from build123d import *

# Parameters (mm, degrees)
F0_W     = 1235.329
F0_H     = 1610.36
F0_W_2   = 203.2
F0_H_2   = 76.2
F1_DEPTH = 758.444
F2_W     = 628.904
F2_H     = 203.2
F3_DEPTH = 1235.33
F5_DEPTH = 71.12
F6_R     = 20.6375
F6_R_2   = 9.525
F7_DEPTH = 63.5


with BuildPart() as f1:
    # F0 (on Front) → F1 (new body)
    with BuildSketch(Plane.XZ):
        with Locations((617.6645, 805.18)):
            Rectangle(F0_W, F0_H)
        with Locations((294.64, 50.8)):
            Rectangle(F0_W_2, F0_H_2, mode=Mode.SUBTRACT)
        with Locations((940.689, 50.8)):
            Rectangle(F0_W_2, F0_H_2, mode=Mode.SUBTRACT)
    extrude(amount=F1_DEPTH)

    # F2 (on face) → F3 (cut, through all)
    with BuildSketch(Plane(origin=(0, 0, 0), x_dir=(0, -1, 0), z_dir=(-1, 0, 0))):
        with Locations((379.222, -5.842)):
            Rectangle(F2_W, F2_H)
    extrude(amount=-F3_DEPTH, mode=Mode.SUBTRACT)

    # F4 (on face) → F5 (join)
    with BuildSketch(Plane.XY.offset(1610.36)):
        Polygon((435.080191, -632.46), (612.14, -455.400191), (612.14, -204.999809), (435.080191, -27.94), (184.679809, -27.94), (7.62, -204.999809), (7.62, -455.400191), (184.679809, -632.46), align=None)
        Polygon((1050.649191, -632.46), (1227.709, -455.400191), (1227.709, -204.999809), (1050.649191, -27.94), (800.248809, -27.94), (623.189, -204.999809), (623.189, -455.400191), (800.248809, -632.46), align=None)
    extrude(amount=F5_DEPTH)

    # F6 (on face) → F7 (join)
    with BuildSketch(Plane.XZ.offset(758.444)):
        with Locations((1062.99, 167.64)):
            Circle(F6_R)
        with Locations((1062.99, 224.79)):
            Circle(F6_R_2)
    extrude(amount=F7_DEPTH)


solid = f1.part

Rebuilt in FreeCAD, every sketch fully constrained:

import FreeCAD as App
import Part
import Sketcher
Q = App.Units.Quantity

doc = App.newDocument("Part")
params = doc.addObject("Spreadsheet::Sheet", "Params")
for row, (alias, value) in enumerate([
    ("sketch1_width", "8 in"),
    ("sketch1_height", "3 in"),
    ("sketch1_height2", "63.4 in"),
    ("sketch1_width2", "48.635 in"),
    ("pad1_length", "29.86 in"),
    ("sketch2_height", "8 in"),
    ("sketch2_width", "24.76 in"),
    ("pad2_length", "2.8 in"),
    ("sketch4_diameter", "0.75 in"),
    ("sketch4_diameter2", "1.625 in"),
    ("pad3_length", "2.5 in"),
], start=1):
    params.set(f"A{row}", alias)
    params.set(f"B{row}", "=" + value)
    params.setAlias(f"B{row}", alias)

body = doc.addObject("PartDesign::Body", "Body")

# Sketch on XZ plane
sketch1 = body.newObject("Sketcher::SketchObject", "Sketch")
sketch1.AttachmentSupport = (doc.getObject("XZ_Plane"), [""])
sketch1.MapMode = "FlatFace"
sketch1.addGeometry([
    Part.LineSegment(App.Vector(0, 1610, 0), App.Vector(0, 0, 0)),  # 0
    Part.LineSegment(App.Vector(0, 0, 0), App.Vector(1235, 0, 0)),  # 1
    Part.LineSegment(App.Vector(1235, 0, 0), App.Vector(1235, 1610, 0)),  # 2
    Part.LineSegment(App.Vector(1235, 1610, 0), App.Vector(0, 1610, 0)),  # 3
    Part.LineSegment(App.Vector(396, 13, 0), App.Vector(193, 13, 0)),  # 4
    Part.LineSegment(App.Vector(193, 13, 0), App.Vector(193, 89, 0)),  # 5
    Part.LineSegment(App.Vector(193, 89, 0), App.Vector(396, 89, 0)),  # 6
    Part.LineSegment(App.Vector(396, 89, 0), App.Vector(396, 13, 0)),  # 7
    Part.LineSegment(App.Vector(1042, 13, 0), App.Vector(839, 13, 0)),  # 8
    Part.LineSegment(App.Vector(839, 13, 0), App.Vector(839, 89, 0)),  # 9
    Part.LineSegment(App.Vector(839, 89, 0), App.Vector(1042, 89, 0)),  # 10
    Part.LineSegment(App.Vector(1042, 89, 0), App.Vector(1042, 13, 0)),  # 11
], False)
sketch1.addConstraint([
    Sketcher.Constraint("Coincident", 0, 2, 1, 1),
    Sketcher.Constraint("Coincident", 1, 2, 2, 1),
    Sketcher.Constraint("Coincident", 2, 2, 3, 1),
    Sketcher.Constraint("Coincident", 3, 2, 0, 1),
    Sketcher.Constraint("Coincident", 4, 2, 5, 1),
    Sketcher.Constraint("Coincident", 5, 2, 6, 1),
    Sketcher.Constraint("Coincident", 6, 2, 7, 1),
    Sketcher.Constraint("Coincident", 7, 2, 4, 1),
    Sketcher.Constraint("Coincident", 8, 2, 9, 1),
    Sketcher.Constraint("Coincident", 9, 2, 10, 1),
    Sketcher.Constraint("Coincident", 10, 2, 11, 1),
    Sketcher.Constraint("Coincident", 11, 2, 8, 1),
    Sketcher.Constraint("Vertical", 0),
    Sketcher.Constraint("Horizontal", 1),
    Sketcher.Constraint("Vertical", 2),
    Sketcher.Constraint("Horizontal", 3),
    Sketcher.Constraint("Horizontal", 4),
    Sketcher.Constraint("Vertical", 5),
    Sketcher.Constraint("Horizontal", 6),
    Sketcher.Constraint("Vertical", 7),
    Sketcher.Constraint("Horizontal", 8),
    Sketcher.Constraint("Vertical", 9),
    Sketcher.Constraint("Horizontal", 10),
    Sketcher.Constraint("Vertical", 11),
    Sketcher.Constraint("Coincident", 0, 2, -1, 1),
    Sketcher.Constraint("Horizontal", 7, 2, 8, 2),
    Sketcher.Constraint("Horizontal", 6, 2, 9, 2),
    Sketcher.Constraint("Equal", 6, 8),
    Sketcher.Constraint("DistanceX", 4, 2, 4, 1, Q("8 in")),
    Sketcher.Constraint("DistanceY", 5, 1, 5, 2, Q("3 in")),
    Sketcher.Constraint("DistanceY", 0, 2, 0, 1, Q("63.4 in")),
    Sketcher.Constraint("DistanceX", -1, 1, 4, 2, Q("7.6 in")),
    Sketcher.Constraint("DistanceY", -1, 1, 4, 2, Q("0.5 in")),
    Sketcher.Constraint("DistanceX", 8, 2, 1, 2, Q("15.6 in")),
    Sketcher.Constraint("DistanceX", 1, 1, 1, 2, Q("48.635 in")),
])
sketch1.setExpression("Constraints[28]", "Params.sketch1_width")
sketch1.setExpression("Constraints[29]", "Params.sketch1_height")
sketch1.setExpression("Constraints[30]", "Params.sketch1_height2")
sketch1.setExpression("Constraints[34]", "Params.sketch1_width2")
pad1 = body.newObject("PartDesign::Pad", "Pad")
pad1.Profile = sketch1
pad1.setExpression("Length", "Params.pad1_length")

# Sketch on YZ plane
sketch2 = body.newObject("Sketcher::SketchObject", "Sketch001")
sketch2.AttachmentSupport = (doc.getObject("YZ_Plane"), [""])
sketch2.MapMode = "FlatFace"
sketch2.addGeometry([
    Part.LineSegment(App.Vector(-65, 96, 0), App.Vector(-65, -107, 0)),
    Part.LineSegment(App.Vector(-65, -107, 0), App.Vector(-694, -107, 0)),
    Part.LineSegment(App.Vector(-694, -107, 0), App.Vector(-694, 96, 0)),
    Part.LineSegment(App.Vector(-694, 96, 0), App.Vector(-65, 96, 0)),
], False)
sketch2.addConstraint([
    Sketcher.Constraint("Coincident", 0, 2, 1, 1),
    Sketcher.Constraint("Coincident", 1, 2, 2, 1),
    Sketcher.Constraint("Coincident", 2, 2, 3, 1),
    Sketcher.Constraint("Coincident", 3, 2, 0, 1),
    Sketcher.Constraint("Vertical", 0),
    Sketcher.Constraint("Horizontal", 1),
    Sketcher.Constraint("Vertical", 2),
    Sketcher.Constraint("Horizontal", 3),
    Sketcher.Constraint("DistanceY", 0, 2, 0, 1, Q("8 in")),
    Sketcher.Constraint("DistanceX", 1, 2, 1, 1, Q("24.76 in")),
    Sketcher.Constraint("DistanceX", 0, 2, -1, 1, Q("2.55 in")),
    Sketcher.Constraint("DistanceY", 0, 2, -1, 1, Q("4.23 in")),
])
sketch2.setExpression("Constraints[8]", "Params.sketch2_height")
sketch2.setExpression("Constraints[9]", "Params.sketch2_width")
pocket1 = body.newObject("PartDesign::Pocket", "Pocket")
pocket1.Profile = sketch2
pocket1.Type = "ThroughAll"
pocket1.Reversed = True

# Sketch on XY plane
sketch3 = body.newObject("Sketcher::SketchObject", "Sketch002")
sketch3.AttachmentSupport = (doc.getObject("XY_Plane"), [""])
sketch3.MapMode = "FlatFace"
sketch3.AttachmentOffset = App.Placement(App.Vector(0, 0, 63.4 * 25.4), App.Rotation())
sketch3.addGeometry([
    Part.LineSegment(App.Vector(435, -632, 0), App.Vector(612, -455, 0)),  # 0
    Part.LineSegment(App.Vector(612, -455, 0), App.Vector(612, -205, 0)),  # 1
    Part.LineSegment(App.Vector(612, -205, 0), App.Vector(435, -28, 0)),  # 2
    Part.LineSegment(App.Vector(435, -28, 0), App.Vector(185, -28, 0)),  # 3
    Part.LineSegment(App.Vector(185, -28, 0), App.Vector(8, -205, 0)),  # 4
    Part.LineSegment(App.Vector(8, -205, 0), App.Vector(8, -455, 0)),  # 5
    Part.LineSegment(App.Vector(8, -455, 0), App.Vector(185, -632, 0)),  # 6
    Part.LineSegment(App.Vector(185, -632, 0), App.Vector(435, -632, 0)),  # 7
    Part.LineSegment(App.Vector(1051, -632, 0), App.Vector(1228, -455, 0)),  # 8
    Part.LineSegment(App.Vector(1228, -455, 0), App.Vector(1228, -205, 0)),  # 9
    Part.LineSegment(App.Vector(1228, -205, 0), App.Vector(1051, -28, 0)),  # 10
    Part.LineSegment(App.Vector(1051, -28, 0), App.Vector(800, -28, 0)),  # 11
    Part.LineSegment(App.Vector(800, -28, 0), App.Vector(623, -205, 0)),  # 12
    Part.LineSegment(App.Vector(623, -205, 0), App.Vector(623, -455, 0)),  # 13
    Part.LineSegment(App.Vector(623, -455, 0), App.Vector(800, -632, 0)),  # 14
    Part.LineSegment(App.Vector(800, -632, 0), App.Vector(1051, -632, 0)),  # 15
], False)
sketch3.addConstraint([
    Sketcher.Constraint("Coincident", 0, 2, 1, 1),
    Sketcher.Constraint("Coincident", 1, 2, 2, 1),
    Sketcher.Constraint("Coincident", 2, 2, 3, 1),
    Sketcher.Constraint("Coincident", 3, 2, 4, 1),
    Sketcher.Constraint("Coincident", 4, 2, 5, 1),
    Sketcher.Constraint("Coincident", 5, 2, 6, 1),
    Sketcher.Constraint("Coincident", 6, 2, 7, 1),
    Sketcher.Constraint("Coincident", 7, 2, 0, 1),
    Sketcher.Constraint("Coincident", 8, 2, 9, 1),
    Sketcher.Constraint("Coincident", 9, 2, 10, 1),
    Sketcher.Constraint("Coincident", 10, 2, 11, 1),
    Sketcher.Constraint("Coincident", 11, 2, 12, 1),
    Sketcher.Constraint("Coincident", 12, 2, 13, 1),
    Sketcher.Constraint("Coincident", 13, 2, 14, 1),
    Sketcher.Constraint("Coincident", 14, 2, 15, 1),
    Sketcher.Constraint("Coincident", 15, 2, 8, 1),
    Sketcher.Constraint("Vertical", 1),
    Sketcher.Constraint("Horizontal", 3),
    Sketcher.Constraint("Vertical", 5),
    Sketcher.Constraint("Horizontal", 7),
    Sketcher.Constraint("Vertical", 9),
    Sketcher.Constraint("Horizontal", 11),
    Sketcher.Constraint("Vertical", 13),
    Sketcher.Constraint("Horizontal", 15),
    Sketcher.Constraint("Perpendicular", 0, 2),
    Sketcher.Constraint("Perpendicular", 2, 4),
    Sketcher.Constraint("Perpendicular", 4, 6),
    Sketcher.Constraint("Perpendicular", 6, 8),
    Sketcher.Constraint("Perpendicular", 8, 10),
    Sketcher.Constraint("Perpendicular", 10, 12),
    Sketcher.Constraint("Perpendicular", 12, 14),
    Sketcher.Constraint("Horizontal", 1, 2, 4, 2),
    Sketcher.Constraint("Horizontal", 0, 2, 5, 2),
    Sketcher.Constraint("Horizontal", 5, 2, 8, 2),
    Sketcher.Constraint("Horizontal", 4, 2, 9, 2),
    Sketcher.Constraint("Horizontal", 3, 2, 10, 2),
    Sketcher.Constraint("Horizontal", 9, 2, 12, 2),
    Sketcher.Constraint("Horizontal", 8, 2, 13, 2),
    Sketcher.Constraint("Horizontal", 7, 2, 14, 2),
    Sketcher.Constraint("Vertical", 3, 2, 6, 2),
    Sketcher.Constraint("Vertical", 2, 2, 7, 2),
    Sketcher.Constraint("Equal", 7, 11),
    Sketcher.Constraint("Equal", 15, 1),
    Sketcher.Constraint("DistanceX", -1, 1, 0, 2, Q("24.1 in")),
    Sketcher.Constraint("DistanceY", 2, 2, -1, 1, Q("1.1 in")),
    Sketcher.Constraint("DistanceX", -1, 1, 4, 2, Q("0.3 in")),
    Sketcher.Constraint("DistanceX", -1, 1, 8, 2, Q("48.335 in")),
    Sketcher.Constraint("DistanceX", 3, 2, 3, 1, 250.400382),
])
pad2 = body.newObject("PartDesign::Pad", "Pad001")
pad2.Profile = sketch3
pad2.setExpression("Length", "Params.pad2_length")

# Sketch on XZ plane
sketch4 = body.newObject("Sketcher::SketchObject", "Sketch003")
sketch4.AttachmentSupport = (doc.getObject("XZ_Plane"), [""])
sketch4.MapMode = "FlatFace"
sketch4.AttachmentOffset = App.Placement(App.Vector(0, 0, 29.86 * 25.4), App.Rotation())
sketch4.addGeometry([
    Part.Circle(App.Vector(1063, 168, 0), App.Vector(0, 0, 1), 21),
    Part.Circle(App.Vector(1063, 225, 0), App.Vector(0, 0, 1), 10),
], False)
sketch4.addConstraint([
    Sketcher.Constraint("Vertical", 0, 3, 1, 3),
    Sketcher.Constraint("Diameter", 1, Q("0.75 in")),
    Sketcher.Constraint("Diameter", 0, Q("1.625 in")),
    Sketcher.Constraint("DistanceY", -1, 1, 0, 3, Q("6.6 in")),
    Sketcher.Constraint("DistanceX", -1, 1, 0, 3, Q("41.85 in")),
    Sketcher.Constraint("DistanceY", -1, 1, 1, 3, Q("8.85 in")),
])
sketch4.setExpression("Constraints[1]", "Params.sketch4_diameter")
sketch4.setExpression("Constraints[2]", "Params.sketch4_diameter2")
pad3 = body.newObject("PartDesign::Pad", "Pad002")
pad3.Profile = sketch4
pad3.setExpression("Length", "Params.pad3_length")

doc.recompute()
